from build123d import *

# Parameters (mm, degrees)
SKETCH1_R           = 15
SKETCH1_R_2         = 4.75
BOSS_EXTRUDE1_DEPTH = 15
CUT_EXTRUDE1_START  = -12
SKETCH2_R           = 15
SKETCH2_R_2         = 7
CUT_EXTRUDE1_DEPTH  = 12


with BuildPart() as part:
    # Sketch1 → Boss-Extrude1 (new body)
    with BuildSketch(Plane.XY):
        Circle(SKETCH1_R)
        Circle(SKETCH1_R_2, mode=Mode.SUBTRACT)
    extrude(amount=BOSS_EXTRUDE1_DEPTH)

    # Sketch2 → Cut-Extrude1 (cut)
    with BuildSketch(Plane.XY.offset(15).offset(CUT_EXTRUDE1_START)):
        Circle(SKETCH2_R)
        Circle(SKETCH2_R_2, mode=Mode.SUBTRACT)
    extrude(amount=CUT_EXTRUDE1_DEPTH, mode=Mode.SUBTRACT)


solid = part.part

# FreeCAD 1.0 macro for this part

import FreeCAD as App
import Part
import Sketcher
Q = App.Units.Quantity

doc = App.newDocument("Part")
body = doc.addObject("PartDesign::Body", "Body")

sketch1 = body.newObject("Sketcher::SketchObject", "Sketch")
sketch1.AttachmentSupport = (doc.getObject("XY_Plane"), [""])
sketch1.MapMode = "FlatFace"
sketch1.addGeometry(Part.Circle(App.Vector(0, 0, 0), App.Vector(0, 0, 1), 15), False)
sketch1.addGeometry(Part.Circle(App.Vector(0, 0, 0), App.Vector(0, 0, 1), 4.8), False)
sketch1.addConstraint(Sketcher.Constraint("Coincident", 0, 3, -1, 1))
sketch1.addConstraint(Sketcher.Constraint("Coincident", 1, 3, -1, 1))
sketch1.addConstraint(Sketcher.Constraint("Diameter", 0, Q("30 mm")))
sketch1.addConstraint(Sketcher.Constraint("Diameter", 1, Q("9.5 mm")))
pad1 = body.newObject("PartDesign::Pad", "Pad")
pad1.Profile = sketch1
pad1.Length = 15

sketch2 = body.newObject("Sketcher::SketchObject", "Sketch001")
sketch2.AttachmentSupport = (doc.getObject("XY_Plane"), [""])
sketch2.MapMode = "FlatFace"
sketch2.AttachmentOffset = App.Placement(App.Vector(0, 0, 3), App.Rotation())
sketch2.addGeometry(Part.Circle(App.Vector(0, 0, 0), App.Vector(0, 0, 1), 15), False)
sketch2.addGeometry(Part.Circle(App.Vector(0, 0, 0), App.Vector(0, 0, 1), 7), False)
sketch2.addConstraint(Sketcher.Constraint("Coincident", 0, 3, -1, 1))
sketch2.addConstraint(Sketcher.Constraint("Coincident", 1, 3, -1, 1))
sketch2.addConstraint(Sketcher.Constraint("Diameter", 0, Q("30 mm")))
sketch2.addConstraint(Sketcher.Constraint("Diameter", 1, Q("14 mm")))
pocket1 = body.newObject("PartDesign::Pocket", "Pocket")
pocket1.Profile = sketch2
pocket1.Length = 12
pocket1.Reversed = True

doc.recompute()
